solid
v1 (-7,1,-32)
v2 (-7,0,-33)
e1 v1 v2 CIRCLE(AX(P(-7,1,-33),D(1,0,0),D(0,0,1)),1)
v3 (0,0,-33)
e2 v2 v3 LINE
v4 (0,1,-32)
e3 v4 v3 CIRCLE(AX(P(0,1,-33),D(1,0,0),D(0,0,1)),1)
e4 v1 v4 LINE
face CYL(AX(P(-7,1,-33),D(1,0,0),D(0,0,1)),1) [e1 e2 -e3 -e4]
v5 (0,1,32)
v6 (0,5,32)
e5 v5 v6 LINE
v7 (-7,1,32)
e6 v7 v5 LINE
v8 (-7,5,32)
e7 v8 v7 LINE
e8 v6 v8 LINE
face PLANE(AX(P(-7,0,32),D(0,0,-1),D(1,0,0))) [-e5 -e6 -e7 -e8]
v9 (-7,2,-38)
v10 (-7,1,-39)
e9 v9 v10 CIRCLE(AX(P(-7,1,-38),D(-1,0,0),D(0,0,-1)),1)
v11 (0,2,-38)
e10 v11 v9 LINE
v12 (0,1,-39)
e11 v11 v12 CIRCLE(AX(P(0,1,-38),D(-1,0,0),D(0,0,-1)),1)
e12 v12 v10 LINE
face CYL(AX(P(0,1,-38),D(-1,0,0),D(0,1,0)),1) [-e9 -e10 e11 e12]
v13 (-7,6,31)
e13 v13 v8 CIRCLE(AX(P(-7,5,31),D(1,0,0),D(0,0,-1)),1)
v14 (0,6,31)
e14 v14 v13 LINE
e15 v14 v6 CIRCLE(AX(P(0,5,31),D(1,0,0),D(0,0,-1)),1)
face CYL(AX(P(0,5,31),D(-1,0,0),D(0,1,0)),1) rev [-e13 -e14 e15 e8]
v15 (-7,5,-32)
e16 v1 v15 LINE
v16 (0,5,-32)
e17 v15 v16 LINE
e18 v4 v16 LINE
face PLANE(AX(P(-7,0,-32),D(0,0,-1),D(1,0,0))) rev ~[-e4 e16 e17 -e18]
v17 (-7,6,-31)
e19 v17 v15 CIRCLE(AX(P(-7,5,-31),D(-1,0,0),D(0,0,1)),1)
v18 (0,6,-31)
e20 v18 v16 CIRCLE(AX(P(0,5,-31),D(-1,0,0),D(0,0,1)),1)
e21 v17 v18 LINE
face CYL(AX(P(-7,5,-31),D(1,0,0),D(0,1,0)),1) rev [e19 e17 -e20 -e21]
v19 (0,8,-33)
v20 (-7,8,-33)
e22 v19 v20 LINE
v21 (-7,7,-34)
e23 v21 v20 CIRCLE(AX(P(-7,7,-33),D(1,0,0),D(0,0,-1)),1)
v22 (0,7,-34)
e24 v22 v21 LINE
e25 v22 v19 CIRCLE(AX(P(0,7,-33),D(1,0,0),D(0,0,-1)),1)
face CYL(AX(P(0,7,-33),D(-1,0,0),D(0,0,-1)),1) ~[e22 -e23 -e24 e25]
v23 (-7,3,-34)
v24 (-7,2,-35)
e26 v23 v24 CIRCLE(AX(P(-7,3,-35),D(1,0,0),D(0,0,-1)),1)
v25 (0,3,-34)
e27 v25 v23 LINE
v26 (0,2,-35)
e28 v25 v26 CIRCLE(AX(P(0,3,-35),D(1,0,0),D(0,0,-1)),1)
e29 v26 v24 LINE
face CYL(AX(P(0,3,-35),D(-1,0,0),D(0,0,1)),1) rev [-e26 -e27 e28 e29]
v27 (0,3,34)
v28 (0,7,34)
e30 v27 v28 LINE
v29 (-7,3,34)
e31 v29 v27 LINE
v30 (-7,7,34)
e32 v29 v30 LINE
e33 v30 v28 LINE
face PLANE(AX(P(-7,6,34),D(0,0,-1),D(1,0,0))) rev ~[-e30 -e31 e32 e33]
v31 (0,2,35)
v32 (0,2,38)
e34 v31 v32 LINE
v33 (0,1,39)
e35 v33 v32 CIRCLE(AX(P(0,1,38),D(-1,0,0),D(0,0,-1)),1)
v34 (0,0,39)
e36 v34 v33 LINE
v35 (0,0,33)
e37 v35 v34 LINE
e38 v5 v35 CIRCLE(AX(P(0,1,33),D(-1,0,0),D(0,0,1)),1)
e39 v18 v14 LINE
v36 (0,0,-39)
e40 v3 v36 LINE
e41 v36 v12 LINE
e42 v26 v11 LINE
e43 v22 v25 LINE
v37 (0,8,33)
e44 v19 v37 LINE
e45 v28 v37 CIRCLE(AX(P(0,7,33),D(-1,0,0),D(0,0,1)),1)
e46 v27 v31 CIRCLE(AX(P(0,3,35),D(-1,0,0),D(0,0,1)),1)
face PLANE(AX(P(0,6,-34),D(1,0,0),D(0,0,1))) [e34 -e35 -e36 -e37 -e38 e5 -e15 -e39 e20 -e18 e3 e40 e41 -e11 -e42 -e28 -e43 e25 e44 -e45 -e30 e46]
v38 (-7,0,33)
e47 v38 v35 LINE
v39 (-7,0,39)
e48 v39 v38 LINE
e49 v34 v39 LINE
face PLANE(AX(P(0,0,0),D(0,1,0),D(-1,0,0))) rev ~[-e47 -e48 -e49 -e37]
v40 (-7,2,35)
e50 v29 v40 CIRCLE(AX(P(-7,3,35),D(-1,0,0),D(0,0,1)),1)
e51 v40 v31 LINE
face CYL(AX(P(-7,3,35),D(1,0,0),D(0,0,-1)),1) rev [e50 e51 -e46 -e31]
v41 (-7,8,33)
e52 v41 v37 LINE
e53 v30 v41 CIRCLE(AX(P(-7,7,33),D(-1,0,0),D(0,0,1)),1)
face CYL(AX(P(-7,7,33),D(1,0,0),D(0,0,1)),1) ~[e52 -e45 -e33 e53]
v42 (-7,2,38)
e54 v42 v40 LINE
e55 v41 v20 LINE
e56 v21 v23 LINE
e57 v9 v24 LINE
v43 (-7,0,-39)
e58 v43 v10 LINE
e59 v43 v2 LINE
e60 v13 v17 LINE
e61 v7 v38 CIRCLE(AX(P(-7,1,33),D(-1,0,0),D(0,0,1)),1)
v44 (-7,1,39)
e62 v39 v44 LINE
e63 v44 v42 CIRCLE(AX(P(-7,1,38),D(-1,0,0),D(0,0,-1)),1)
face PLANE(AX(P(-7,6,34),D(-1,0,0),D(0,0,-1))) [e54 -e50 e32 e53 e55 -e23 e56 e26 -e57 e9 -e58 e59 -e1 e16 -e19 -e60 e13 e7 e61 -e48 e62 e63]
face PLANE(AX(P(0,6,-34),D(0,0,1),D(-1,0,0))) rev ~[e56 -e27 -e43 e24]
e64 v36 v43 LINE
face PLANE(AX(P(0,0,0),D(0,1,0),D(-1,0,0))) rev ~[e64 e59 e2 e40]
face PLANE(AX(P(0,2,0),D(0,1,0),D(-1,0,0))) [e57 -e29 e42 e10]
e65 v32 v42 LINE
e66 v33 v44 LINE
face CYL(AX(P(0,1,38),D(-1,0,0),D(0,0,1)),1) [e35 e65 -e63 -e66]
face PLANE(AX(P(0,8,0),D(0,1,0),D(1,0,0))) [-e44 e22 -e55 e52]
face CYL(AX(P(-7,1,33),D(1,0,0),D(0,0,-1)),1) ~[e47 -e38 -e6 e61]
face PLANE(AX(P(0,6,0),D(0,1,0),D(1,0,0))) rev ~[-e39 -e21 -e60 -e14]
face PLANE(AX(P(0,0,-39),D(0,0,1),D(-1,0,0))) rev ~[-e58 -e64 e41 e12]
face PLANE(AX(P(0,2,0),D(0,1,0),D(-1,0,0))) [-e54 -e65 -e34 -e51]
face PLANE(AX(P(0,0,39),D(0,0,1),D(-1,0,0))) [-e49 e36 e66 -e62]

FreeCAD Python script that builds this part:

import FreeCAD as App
import Part
import Sketcher

V = App.Vector
Q = App.Units.Quantity


def edges_at(feature, points):
    """Names of the edges that pass closest to the given points."""
    edges = feature.Shape.Edges
    near = lambda p: min(range(len(edges)), key=lambda i: edges[i].distToShape(Part.Vertex(*p))[0])
    return sorted({f"Edge{near(p) + 1}" for p in points})


def add_polygon(sketch, points):
    """Adds a closed chain of lines whose ends are joined by coincident constraints."""
    first, n = sketch.GeometryCount, len(points)
    for a, b in zip(points, points[1:] + points[:1]):
        sketch.addGeometry(Part.LineSegment(App.Vector(*a, 0), App.Vector(*b, 0)), False)
    for i in range(n):
        sketch.addConstraint(Sketcher.Constraint("Coincident", first + i, 2, first + (i + 1) % n, 1))

doc = App.newDocument("Part")
body = doc.addObject("PartDesign::Body", "Body")
body.AllowCompound = True

# Sketch on XZ plane
sketch1 = body.newObject("Sketcher::SketchObject", "Sketch")
sketch1.AttachmentSupport = (doc.getObject("XZ_Plane"), [""])
sketch1.MapMode = "FlatFace"
add_polygon(sketch1, [(-7, 39), (0, 39), (0, 32), (-7, 32)])  # lines 0-3
add_polygon(sketch1, [(-7, -39), (-7, -32), (0, -32), (0, -39)])  # lines 4-7
sketch1.addConstraint([
    Sketcher.Constraint("Horizontal", 0),
    Sketcher.Constraint("Vertical", 1),
    Sketcher.Constraint("Horizontal", 2),
    Sketcher.Constraint("Vertical", 3),
    Sketcher.Constraint("Vertical", 4),
    Sketcher.Constraint("Horizontal", 5),
    Sketcher.Constraint("Vertical", 6),
    Sketcher.Constraint("Horizontal", 7),
    Sketcher.Constraint("Symmetric", 1, 2, 5, 2, -1, 1),
    Sketcher.Constraint("Symmetric", 0, 2, 6, 2, -1),
    Sketcher.Constraint("Vertical", 3, 2, 4, 2),
    Sketcher.Constraint("Equal", 7, 1),
    Sketcher.Constraint("DistanceX", 0, 1, 0, 2, Q("7 mm")),
    Sketcher.Constraint("DistanceY", 6, 2, 0, 2, Q("78 mm")),
])
pad1 = body.newObject("PartDesign::Pad", "Pad")
pad1.Profile = sketch1
pad1.Length = 2
pad1.Reversed = True

# Sketch on XZ plane
sketch2 = body.newObject("Sketcher::SketchObject", "Sketch001")
sketch2.AttachmentSupport = (doc.getObject("XZ_Plane"), [""])
sketch2.MapMode = "FlatFace"
sketch2.AttachmentOffset = App.Placement(V(0, 0, -2), App.Rotation())
add_polygon(sketch2, [(0, 32), (-7, 32), (-7, 34), (0, 34)])  # lines 0-3
add_polygon(sketch2, [(-7, -34), (-7, -32), (0, -32), (0, -34)])  # lines 4-7
sketch2.addConstraint([
    Sketcher.Constraint("Horizontal", 0),
    Sketcher.Constraint("Vertical", 1),
    Sketcher.Constraint("Horizontal", 2),
    Sketcher.Constraint("Vertical", 3),
    Sketcher.Constraint("Vertical", 4),
    Sketcher.Constraint("Horizontal", 5),
    Sketcher.Constraint("Vertical", 6),
    Sketcher.Constraint("Horizontal", 7),
    Sketcher.Constraint("Symmetric", 3, 2, 5, 2, -1, 1),
    Sketcher.Constraint("Symmetric", 2, 2, 6, 2, -1),
    Sketcher.Constraint("Vertical", 1, 2, 4, 2),
    Sketcher.Constraint("DistanceY", 1, 1, 1, 2, Q("2 mm")),
    Sketcher.Constraint("DistanceX", 0, 2, 0, 1, Q("7 mm")),
    Sketcher.Constraint("DistanceY", -1, 1, 0, 2, Q("32 mm")),
])
pad2 = body.newObject("PartDesign::Pad", "Pad001")
pad2.Profile = sketch2
pad2.Length = 4
pad2.Reversed = True

# Sketch on XZ plane
sketch3 = body.newObject("Sketcher::SketchObject", "Sketch002")
sketch3.AttachmentSupport = (doc.getObject("XZ_Plane"), [""])
sketch3.MapMode = "FlatFace"
sketch3.AttachmentOffset = App.Placement(V(0, 0, -6), App.Rotation())
add_polygon(sketch3, [(-7, -34), (-7, 34), (0, 34), (0, -34)])  # lines 0-3
sketch3.addConstraint([
    Sketcher.Constraint("Vertical", 0),
    Sketcher.Constraint("Horizontal", 1),
    Sketcher.Constraint("Vertical", 2),
    Sketcher.Constraint("Horizontal", 3),
    Sketcher.Constraint("Symmetric", 1, 2, 2, 2, -1, 1),
    Sketcher.Constraint("DistanceX", 1, 1, 1, 2, Q("7 mm")),
    Sketcher.Constraint("DistanceY", 0, 1, 0, 2, Q("68 mm")),
])
pad3 = body.newObject("PartDesign::Pad", "Pad002")
pad3.Profile = sketch3
pad3.Length = 2
pad3.Reversed = True
doc.recompute()

fillet = body.newObject("PartDesign::Fillet", "Fillet")
fillet.Base = (pad3, edges_at(pad3, [
    (-3.5, 2, 34),
    (-3.5, 2, 39),
    (-3.5, 2, -34),
    (-3.5, 0, 32),
    (-3.5, 0, -32),
    (-3.5, 6, -32),
    (-3.5, 6, 32),
    (-3.5, 8, -34),
    (-3.5, 8, 34),
]))
fillet.Radius = 1
doc.recompute()

fillet2 = body.newObject("PartDesign::Fillet", "Fillet001")
fillet2.Base = (fillet, edges_at(fillet, [(-3.5, 2, -39)]))
fillet2.Radius = 1

doc.recompute()
